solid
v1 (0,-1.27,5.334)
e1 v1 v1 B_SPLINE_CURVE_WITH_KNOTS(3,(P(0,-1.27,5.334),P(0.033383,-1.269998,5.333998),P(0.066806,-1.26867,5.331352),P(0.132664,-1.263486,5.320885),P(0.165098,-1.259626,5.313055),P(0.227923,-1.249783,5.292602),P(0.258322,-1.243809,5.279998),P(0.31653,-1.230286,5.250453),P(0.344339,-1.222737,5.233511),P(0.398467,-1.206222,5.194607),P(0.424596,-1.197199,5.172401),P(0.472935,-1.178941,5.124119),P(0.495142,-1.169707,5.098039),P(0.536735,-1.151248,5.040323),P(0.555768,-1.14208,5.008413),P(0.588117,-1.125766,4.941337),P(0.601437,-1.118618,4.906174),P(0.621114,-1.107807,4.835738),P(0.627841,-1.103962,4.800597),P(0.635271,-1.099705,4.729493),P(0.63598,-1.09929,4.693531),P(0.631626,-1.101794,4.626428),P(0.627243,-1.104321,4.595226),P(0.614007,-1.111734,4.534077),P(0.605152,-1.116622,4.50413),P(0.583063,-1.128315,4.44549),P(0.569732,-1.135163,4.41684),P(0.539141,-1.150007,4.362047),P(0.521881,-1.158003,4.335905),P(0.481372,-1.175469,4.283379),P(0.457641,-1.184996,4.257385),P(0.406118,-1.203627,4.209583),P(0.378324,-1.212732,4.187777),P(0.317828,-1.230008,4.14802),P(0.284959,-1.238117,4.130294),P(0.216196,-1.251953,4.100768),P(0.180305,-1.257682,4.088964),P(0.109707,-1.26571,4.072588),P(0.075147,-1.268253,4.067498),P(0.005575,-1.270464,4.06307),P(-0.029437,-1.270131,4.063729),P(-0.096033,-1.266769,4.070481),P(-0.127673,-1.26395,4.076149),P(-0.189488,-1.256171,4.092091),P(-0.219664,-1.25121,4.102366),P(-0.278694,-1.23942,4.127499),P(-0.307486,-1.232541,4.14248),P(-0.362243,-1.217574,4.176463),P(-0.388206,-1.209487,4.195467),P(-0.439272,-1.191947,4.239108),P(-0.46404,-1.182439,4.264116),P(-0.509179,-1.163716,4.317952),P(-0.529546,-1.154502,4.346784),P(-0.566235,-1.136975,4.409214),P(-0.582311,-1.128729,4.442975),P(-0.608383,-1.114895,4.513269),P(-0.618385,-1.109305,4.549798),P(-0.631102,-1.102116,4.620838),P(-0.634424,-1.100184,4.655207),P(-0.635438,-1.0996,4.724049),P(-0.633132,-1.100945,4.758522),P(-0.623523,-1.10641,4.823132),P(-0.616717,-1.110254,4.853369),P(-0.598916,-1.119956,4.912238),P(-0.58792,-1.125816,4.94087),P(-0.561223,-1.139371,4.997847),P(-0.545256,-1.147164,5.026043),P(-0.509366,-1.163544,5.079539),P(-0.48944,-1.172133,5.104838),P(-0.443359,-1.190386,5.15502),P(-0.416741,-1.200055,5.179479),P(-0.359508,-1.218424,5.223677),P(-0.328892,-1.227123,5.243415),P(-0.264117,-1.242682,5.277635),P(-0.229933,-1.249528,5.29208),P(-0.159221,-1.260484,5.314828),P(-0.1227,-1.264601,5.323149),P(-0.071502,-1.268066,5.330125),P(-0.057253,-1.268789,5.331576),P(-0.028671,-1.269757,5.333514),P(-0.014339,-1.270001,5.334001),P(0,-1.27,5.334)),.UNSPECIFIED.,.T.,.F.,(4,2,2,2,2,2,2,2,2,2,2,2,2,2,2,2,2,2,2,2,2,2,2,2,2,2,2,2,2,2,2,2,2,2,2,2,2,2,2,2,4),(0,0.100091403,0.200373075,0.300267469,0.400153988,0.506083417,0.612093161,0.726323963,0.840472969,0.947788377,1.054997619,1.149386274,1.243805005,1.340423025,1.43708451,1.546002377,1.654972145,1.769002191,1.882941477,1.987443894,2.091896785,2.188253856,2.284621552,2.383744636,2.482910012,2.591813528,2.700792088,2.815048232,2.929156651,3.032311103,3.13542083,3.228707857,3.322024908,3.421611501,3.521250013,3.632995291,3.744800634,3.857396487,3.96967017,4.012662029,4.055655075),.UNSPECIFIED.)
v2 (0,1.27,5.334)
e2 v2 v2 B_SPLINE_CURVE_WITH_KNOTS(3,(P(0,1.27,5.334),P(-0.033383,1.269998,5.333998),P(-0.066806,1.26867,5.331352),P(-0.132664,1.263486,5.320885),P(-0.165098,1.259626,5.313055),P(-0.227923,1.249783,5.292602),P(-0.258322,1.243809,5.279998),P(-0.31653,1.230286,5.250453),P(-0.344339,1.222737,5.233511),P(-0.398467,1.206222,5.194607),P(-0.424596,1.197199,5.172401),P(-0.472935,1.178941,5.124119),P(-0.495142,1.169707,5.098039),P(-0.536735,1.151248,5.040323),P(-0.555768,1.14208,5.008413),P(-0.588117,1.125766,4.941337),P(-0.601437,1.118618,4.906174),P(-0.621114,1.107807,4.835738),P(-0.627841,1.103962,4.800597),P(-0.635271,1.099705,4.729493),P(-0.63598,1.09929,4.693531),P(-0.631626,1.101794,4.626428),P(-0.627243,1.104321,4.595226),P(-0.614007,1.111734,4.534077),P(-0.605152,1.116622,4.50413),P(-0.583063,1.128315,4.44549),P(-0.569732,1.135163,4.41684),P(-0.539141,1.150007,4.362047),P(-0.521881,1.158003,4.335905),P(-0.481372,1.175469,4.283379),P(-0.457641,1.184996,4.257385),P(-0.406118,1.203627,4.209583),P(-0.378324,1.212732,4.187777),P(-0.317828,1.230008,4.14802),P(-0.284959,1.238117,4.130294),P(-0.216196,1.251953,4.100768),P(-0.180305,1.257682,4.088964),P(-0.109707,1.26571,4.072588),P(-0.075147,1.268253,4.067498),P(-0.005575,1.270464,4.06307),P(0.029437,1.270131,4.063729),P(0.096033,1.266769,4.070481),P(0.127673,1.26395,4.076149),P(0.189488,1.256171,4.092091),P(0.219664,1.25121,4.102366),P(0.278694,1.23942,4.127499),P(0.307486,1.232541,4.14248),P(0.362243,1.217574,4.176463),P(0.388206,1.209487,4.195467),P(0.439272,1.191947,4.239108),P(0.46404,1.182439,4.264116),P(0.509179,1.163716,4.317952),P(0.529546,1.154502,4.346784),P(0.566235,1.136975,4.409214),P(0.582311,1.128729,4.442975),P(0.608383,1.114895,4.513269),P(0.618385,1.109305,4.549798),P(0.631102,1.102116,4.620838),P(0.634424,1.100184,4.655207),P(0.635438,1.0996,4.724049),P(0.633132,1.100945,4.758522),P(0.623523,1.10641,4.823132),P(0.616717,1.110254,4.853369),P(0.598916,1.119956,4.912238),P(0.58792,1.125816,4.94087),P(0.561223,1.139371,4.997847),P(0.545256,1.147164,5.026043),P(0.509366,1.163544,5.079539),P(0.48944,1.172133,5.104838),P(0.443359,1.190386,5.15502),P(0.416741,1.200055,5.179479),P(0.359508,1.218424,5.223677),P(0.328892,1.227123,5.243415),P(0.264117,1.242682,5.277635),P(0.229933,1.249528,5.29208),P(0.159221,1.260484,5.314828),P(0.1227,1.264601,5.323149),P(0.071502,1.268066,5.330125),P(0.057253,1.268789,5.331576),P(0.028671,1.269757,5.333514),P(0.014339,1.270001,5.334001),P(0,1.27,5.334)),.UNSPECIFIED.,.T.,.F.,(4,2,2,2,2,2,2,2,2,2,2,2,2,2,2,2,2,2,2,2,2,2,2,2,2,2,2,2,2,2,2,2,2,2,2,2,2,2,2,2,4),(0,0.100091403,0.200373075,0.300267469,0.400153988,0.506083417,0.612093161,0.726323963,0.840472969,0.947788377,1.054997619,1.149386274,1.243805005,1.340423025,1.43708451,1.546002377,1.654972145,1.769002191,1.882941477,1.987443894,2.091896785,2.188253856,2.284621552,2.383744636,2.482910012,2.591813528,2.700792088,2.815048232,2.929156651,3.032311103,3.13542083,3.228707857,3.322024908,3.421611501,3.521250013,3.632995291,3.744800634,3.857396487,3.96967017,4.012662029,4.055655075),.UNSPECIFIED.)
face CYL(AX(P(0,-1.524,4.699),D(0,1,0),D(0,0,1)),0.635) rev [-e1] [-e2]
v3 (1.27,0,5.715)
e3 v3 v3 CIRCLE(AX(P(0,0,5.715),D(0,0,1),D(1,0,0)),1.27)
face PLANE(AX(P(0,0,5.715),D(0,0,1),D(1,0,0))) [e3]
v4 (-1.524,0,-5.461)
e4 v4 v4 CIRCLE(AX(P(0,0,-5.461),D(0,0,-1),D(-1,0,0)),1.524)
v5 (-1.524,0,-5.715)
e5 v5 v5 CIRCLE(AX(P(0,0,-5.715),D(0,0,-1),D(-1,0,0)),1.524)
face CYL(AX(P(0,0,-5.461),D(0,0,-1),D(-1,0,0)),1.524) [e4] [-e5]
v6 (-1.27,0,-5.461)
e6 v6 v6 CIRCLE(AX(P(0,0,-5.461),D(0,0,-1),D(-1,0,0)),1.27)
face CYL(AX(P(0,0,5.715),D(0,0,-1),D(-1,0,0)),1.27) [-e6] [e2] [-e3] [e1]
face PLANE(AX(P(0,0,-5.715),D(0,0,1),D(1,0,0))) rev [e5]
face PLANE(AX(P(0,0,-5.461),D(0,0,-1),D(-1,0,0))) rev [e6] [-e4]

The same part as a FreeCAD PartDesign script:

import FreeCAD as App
import Part
import Sketcher
Q = App.Units.Quantity

doc = App.newDocument("Part")
params = doc.addObject("Spreadsheet::Sheet", "Params")
for row, (alias, value) in enumerate([
    ("sketch1_diameter", "0.1 in"),
    ("pad1_length", "0.45 in"),
    ("sketch2_diameter", "0.05 in"),
    ("pocket1_length", "0.12 in"),
    ("sketch3_diameter", "0.1 in"),
    ("sketch3_diameter2", "0.12 in"),
    ("pad2_length", "0.01 in"),
], start=1):
    params.set(f"A{row}", alias)
    params.set(f"B{row}", "=" + value)
    params.setAlias(f"B{row}", alias)

body = doc.addObject("PartDesign::Body", "Body")

sketch1 = body.newObject("Sketcher::SketchObject", "Sketch")
sketch1.AttachmentSupport = (doc.getObject("XY_Plane"), [""])
sketch1.MapMode = "FlatFace"
sketch1.addGeometry(Part.Circle(App.Vector(0, 0, 0), App.Vector(0, 0, 1), 1.3), False)
sketch1.addConstraint(Sketcher.Constraint("Coincident", 0, 3, -1, 1))
sketch1.addConstraint(Sketcher.Constraint("Diameter", 0, Q("0.1 in")))
sketch1.setExpression("Constraints[1]", "Params.sketch1_diameter")
pad1 = body.newObject("PartDesign::Pad", "Pad")
pad1.Profile = sketch1
pad1.setExpression("Length", "Params.pad1_length")
pad1.Midplane = True

sketch2 = body.newObject("Sketcher::SketchObject", "Sketch001")
sketch2.AttachmentSupport = (doc.getObject("XZ_Plane"), [""])
sketch2.MapMode = "FlatFace"
sketch2.addGeometry(Part.Circle(App.Vector(0, 4.7, 0), App.Vector(0, 0, 1), 0.6), False)
sketch2.addConstraint(Sketcher.Constraint("PointOnObject", 0, 3, -2))
sketch2.addConstraint(Sketcher.Constraint("Diameter", 0, Q("0.05 in")))
sketch2.addConstraint(Sketcher.Constraint("DistanceY", -1, 1, 0, 3, Q("0.185 in")))
sketch2.setExpression("Constraints[1]", "Params.sketch2_diameter")
pocket1 = body.newObject("PartDesign::Pocket", "Pocket")
pocket1.Profile = sketch2
pocket1.setExpression("Length", "Params.pocket1_length")
pocket1.Midplane = True

sketch3 = body.newObject("Sketcher::SketchObject", "Sketch002")
sketch3.AttachmentSupport = (doc.getObject("XY_Plane"), [""])
sketch3.MapMode = "FlatFace"
sketch3.AttachmentOffset = App.Placement(App.Vector(0, 0, -0.215 * 25.4), App.Rotation())
sketch3.addGeometry(Part.Circle(App.Vector(0, 0, 0), App.Vector(0, 0, 1), 1.5), False)
sketch3.addGeometry(Part.Circle(App.Vector(0, 0, 0), App.Vector(0, 0, 1), 1.3), False)
sketch3.addConstraint(Sketcher.Constraint("Coincident", 0, 3, -1, 1))
sketch3.addConstraint(Sketcher.Constraint("Coincident", 1, 3, -1, 1))
sketch3.addConstraint(Sketcher.Constraint("Diameter", 1, Q("0.1 in")))
sketch3.addConstraint(Sketcher.Constraint("Diameter", 0, Q("0.12 in")))
sketch3.setExpression("Constraints[2]", "Params.sketch3_diameter")
sketch3.setExpression("Constraints[3]", "Params.sketch3_diameter2")
pad2 = body.newObject("PartDesign::Pad", "Pad001")
pad2.Profile = sketch3
pad2.setExpression("Length", "Params.pad2_length")
pad2.Reversed = True

doc.recompute()
